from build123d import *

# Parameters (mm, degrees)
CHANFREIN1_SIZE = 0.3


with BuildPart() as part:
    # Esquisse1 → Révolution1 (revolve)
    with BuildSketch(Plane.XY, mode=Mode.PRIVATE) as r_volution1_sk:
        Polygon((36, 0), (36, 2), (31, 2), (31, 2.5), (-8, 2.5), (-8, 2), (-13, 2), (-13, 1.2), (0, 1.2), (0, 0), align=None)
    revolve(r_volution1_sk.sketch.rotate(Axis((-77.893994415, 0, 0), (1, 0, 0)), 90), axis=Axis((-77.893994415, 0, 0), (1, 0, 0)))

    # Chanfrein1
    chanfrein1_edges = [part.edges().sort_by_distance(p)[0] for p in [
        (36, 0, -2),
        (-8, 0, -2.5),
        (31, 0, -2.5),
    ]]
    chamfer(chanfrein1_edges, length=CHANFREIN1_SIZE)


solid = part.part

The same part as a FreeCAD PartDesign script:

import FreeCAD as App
import Part
import Sketcher
from FreeCAD import Vector


def edges_at(feature, points):
    """Names of the edges that pass closest to the given points."""
    edges = feature.Shape.Edges
    near = lambda p: min(range(len(edges)), key=lambda i: edges[i].distToShape(Part.Vertex(*p))[0])
    return sorted({f"Edge{near(p) + 1}" for p in points})


def add_polygon(sketch, points):
    """Adds a closed chain of lines whose ends are joined by coincident constraints."""
    first, n = sketch.GeometryCount, len(points)
    for a, b in zip(points, points[1:] + points[:1]):
        sketch.addGeometry(Part.LineSegment(App.Vector(*a, 0), App.Vector(*b, 0)), False)
    for i in range(n):
        sketch.addConstraint(Sketcher.Constraint("Coincident", first + i, 2, first + (i + 1) % n, 1))

doc = App.newDocument("Part")
body = doc.addObject("PartDesign::Body", "Body")

sketch1 = body.newObject("Sketcher::SketchObject", "Sketch")
sketch1.AttachmentSupport = (doc.getObject("XY_Plane"), [""])
sketch1.MapMode = "FlatFace"
add_polygon(sketch1, [(36, 0), (36, 2), (31, 2), (31, 2.5), (-8, 2.5), (-8, 2), (-13, 2), (-13, 1.2), (0, 1.2), (0, 0)])
sketch1.addConstraint([
    Sketcher.Constraint("Vertical", 0),
    Sketcher.Constraint("Horizontal", 1),
    Sketcher.Constraint("Vertical", 2),
    Sketcher.Constraint("Horizontal", 3),
    Sketcher.Constraint("Vertical", 4),
    Sketcher.Constraint("Horizontal", 5),
    Sketcher.Constraint("Vertical", 6),
    Sketcher.Constraint("Horizontal", 7),
    Sketcher.Constraint("Vertical", 8),
    Sketcher.Constraint("Horizontal", 9),
    Sketcher.Constraint("Coincident", 8, 2, -1, 1),
    Sketcher.Constraint("Horizontal", 1, 2, 4, 2),
    Sketcher.Constraint("Equal", 1, 5),
    Sketcher.Constraint("DistanceX", 1, 2, 1, 1, 5.0),
    Sketcher.Constraint("DistanceX", 3, 2, 3, 1, 39.0),
    Sketcher.Constraint("DistanceX", 7, 1, 7, 2, 13.0),
    Sketcher.Constraint("DistanceY", 0, 1, 0, 2, 2.0),
    Sketcher.Constraint("DistanceY", 2, 1, 2, 2, 0.5),
    Sketcher.Constraint("DistanceY", 6, 2, 6, 1, 0.8),
])
revolution = body.newObject("PartDesign::Revolution", "Revolution")
revolution.Profile = sketch1
revolution.ReferenceAxis = (sketch1, ["H_Axis"])
revolution.Angle = 360
doc.recompute()

chamfer = body.newObject("PartDesign::Chamfer", "Chamfer")
chamfer.Base = (revolution, edges_at(revolution, [(36, 0, -2), (-8, 0, -2.5), (31, 0, -2.5)]))
chamfer.Size = 0.3

doc.recompute()
